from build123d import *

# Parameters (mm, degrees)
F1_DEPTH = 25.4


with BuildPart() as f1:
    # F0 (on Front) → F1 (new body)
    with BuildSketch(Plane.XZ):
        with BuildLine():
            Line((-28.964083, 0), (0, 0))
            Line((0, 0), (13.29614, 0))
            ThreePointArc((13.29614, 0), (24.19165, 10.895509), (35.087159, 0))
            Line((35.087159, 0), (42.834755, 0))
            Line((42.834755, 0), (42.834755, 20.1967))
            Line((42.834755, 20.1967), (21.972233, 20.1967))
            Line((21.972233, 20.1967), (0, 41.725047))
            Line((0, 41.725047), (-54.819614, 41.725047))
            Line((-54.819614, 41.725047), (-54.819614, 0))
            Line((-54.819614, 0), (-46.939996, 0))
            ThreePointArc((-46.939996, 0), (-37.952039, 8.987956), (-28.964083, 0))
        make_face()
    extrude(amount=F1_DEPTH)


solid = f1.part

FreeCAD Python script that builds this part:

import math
import FreeCAD as App
import Part
import Sketcher
Q = App.Units.Quantity

doc = App.newDocument("Part")
body = doc.addObject("PartDesign::Body", "Body")

# Sketch on XZ plane
sketch1 = body.newObject("Sketcher::SketchObject", "Sketch")
sketch1.AttachmentSupport = (doc.getObject("XZ_Plane"), [""])
sketch1.MapMode = "FlatFace"
sketch1.addGeometry([
    Part.LineSegment(App.Vector(-28.964083, 0, 0), App.Vector(13.29614, 0, 0)),  # 0
    Part.ArcOfCircle(Part.Circle(App.Vector(24.19165, 0, 0), App.Vector(0, 0, 1), 10.895509), math.radians(0.000003), math.radians(179.999997)),  # 1
    Part.LineSegment(App.Vector(35.087159, 0, 0), App.Vector(42.834755, 0, 0)),  # 2
    Part.LineSegment(App.Vector(42.834755, 0, 0), App.Vector(42.834755, 20.1967, 0)),  # 3
    Part.LineSegment(App.Vector(42.834755, 20.1967, 0), App.Vector(21.972233, 20.1967, 0)),  # 4
    Part.LineSegment(App.Vector(21.972233, 20.1967, 0), App.Vector(0, 41.725047, 0)),  # 5
    Part.LineSegment(App.Vector(0, 41.725047, 0), App.Vector(-54.819614, 41.725047, 0)),  # 6
    Part.LineSegment(App.Vector(-54.819614, 41.725047, 0), App.Vector(-54.819614, 0, 0)),  # 7
    Part.LineSegment(App.Vector(-54.819614, 0, 0), App.Vector(-46.939996, 0, 0)),  # 8
    Part.ArcOfCircle(Part.Circle(App.Vector(-37.952039, 0, 0), App.Vector(0, 0, 1), 8.987956), math.radians(0.000003), math.radians(179.999997)),  # 9
], False)
sketch1.addConstraint([
    Sketcher.Constraint("Coincident", 0, 2, 1, 2),
    Sketcher.Constraint("Coincident", 1, 1, 2, 1),
    Sketcher.Constraint("Coincident", 2, 2, 3, 1),
    Sketcher.Constraint("Coincident", 3, 2, 4, 1),
    Sketcher.Constraint("Coincident", 4, 2, 5, 1),
    Sketcher.Constraint("Coincident", 5, 2, 6, 1),
    Sketcher.Constraint("Coincident", 6, 2, 7, 1),
    Sketcher.Constraint("Coincident", 7, 2, 8, 1),
    Sketcher.Constraint("Coincident", 8, 2, 9, 2),
    Sketcher.Constraint("Coincident", 9, 1, 0, 1),
    Sketcher.Constraint("Horizontal", 0),
    Sketcher.Constraint("Horizontal", 2),
    Sketcher.Constraint("Vertical", 3),
    Sketcher.Constraint("Horizontal", 4),
    Sketcher.Constraint("Horizontal", 6),
    Sketcher.Constraint("Vertical", 7),
    Sketcher.Constraint("Horizontal", 8),
    Sketcher.Constraint("PointOnObject", 1, 3, -1),
    Sketcher.Constraint("PointOnObject", 9, 3, -1),
    Sketcher.Constraint("PointOnObject", 0, 2, -1),
    Sketcher.Constraint("PointOnObject", 1, 1, -1),
    Sketcher.Constraint("PointOnObject", 5, 2, -2),
    Sketcher.Constraint("PointOnObject", 7, 2, -1),
    Sketcher.Constraint("Radius", 1, 10.895509),
    Sketcher.Constraint("DistanceY", 3, 1, 3, 2, 20.1967),
    Sketcher.Constraint("Radius", 9, 8.987956),
    Sketcher.Constraint("DistanceX", 8, 1, 8, 2, 7.879618),
    Sketcher.Constraint("DistanceX", 9, 3, 1, 1, 73.039198),
    Sketcher.Constraint("DistanceX", 2, 1, 2, 2, 7.747596),
    Sketcher.Constraint("DistanceX", 4, 2, 4, 1, 20.862522),
    Sketcher.Constraint("DistanceX", 6, 2, 6, 1, 54.819614),
    Sketcher.Constraint("DistanceY", 7, 2, 7, 1, 41.725047),
])
pad1 = body.newObject("PartDesign::Pad", "Pad")
pad1.Profile = sketch1
pad1.Length = Q("1 in")

doc.recompute()
